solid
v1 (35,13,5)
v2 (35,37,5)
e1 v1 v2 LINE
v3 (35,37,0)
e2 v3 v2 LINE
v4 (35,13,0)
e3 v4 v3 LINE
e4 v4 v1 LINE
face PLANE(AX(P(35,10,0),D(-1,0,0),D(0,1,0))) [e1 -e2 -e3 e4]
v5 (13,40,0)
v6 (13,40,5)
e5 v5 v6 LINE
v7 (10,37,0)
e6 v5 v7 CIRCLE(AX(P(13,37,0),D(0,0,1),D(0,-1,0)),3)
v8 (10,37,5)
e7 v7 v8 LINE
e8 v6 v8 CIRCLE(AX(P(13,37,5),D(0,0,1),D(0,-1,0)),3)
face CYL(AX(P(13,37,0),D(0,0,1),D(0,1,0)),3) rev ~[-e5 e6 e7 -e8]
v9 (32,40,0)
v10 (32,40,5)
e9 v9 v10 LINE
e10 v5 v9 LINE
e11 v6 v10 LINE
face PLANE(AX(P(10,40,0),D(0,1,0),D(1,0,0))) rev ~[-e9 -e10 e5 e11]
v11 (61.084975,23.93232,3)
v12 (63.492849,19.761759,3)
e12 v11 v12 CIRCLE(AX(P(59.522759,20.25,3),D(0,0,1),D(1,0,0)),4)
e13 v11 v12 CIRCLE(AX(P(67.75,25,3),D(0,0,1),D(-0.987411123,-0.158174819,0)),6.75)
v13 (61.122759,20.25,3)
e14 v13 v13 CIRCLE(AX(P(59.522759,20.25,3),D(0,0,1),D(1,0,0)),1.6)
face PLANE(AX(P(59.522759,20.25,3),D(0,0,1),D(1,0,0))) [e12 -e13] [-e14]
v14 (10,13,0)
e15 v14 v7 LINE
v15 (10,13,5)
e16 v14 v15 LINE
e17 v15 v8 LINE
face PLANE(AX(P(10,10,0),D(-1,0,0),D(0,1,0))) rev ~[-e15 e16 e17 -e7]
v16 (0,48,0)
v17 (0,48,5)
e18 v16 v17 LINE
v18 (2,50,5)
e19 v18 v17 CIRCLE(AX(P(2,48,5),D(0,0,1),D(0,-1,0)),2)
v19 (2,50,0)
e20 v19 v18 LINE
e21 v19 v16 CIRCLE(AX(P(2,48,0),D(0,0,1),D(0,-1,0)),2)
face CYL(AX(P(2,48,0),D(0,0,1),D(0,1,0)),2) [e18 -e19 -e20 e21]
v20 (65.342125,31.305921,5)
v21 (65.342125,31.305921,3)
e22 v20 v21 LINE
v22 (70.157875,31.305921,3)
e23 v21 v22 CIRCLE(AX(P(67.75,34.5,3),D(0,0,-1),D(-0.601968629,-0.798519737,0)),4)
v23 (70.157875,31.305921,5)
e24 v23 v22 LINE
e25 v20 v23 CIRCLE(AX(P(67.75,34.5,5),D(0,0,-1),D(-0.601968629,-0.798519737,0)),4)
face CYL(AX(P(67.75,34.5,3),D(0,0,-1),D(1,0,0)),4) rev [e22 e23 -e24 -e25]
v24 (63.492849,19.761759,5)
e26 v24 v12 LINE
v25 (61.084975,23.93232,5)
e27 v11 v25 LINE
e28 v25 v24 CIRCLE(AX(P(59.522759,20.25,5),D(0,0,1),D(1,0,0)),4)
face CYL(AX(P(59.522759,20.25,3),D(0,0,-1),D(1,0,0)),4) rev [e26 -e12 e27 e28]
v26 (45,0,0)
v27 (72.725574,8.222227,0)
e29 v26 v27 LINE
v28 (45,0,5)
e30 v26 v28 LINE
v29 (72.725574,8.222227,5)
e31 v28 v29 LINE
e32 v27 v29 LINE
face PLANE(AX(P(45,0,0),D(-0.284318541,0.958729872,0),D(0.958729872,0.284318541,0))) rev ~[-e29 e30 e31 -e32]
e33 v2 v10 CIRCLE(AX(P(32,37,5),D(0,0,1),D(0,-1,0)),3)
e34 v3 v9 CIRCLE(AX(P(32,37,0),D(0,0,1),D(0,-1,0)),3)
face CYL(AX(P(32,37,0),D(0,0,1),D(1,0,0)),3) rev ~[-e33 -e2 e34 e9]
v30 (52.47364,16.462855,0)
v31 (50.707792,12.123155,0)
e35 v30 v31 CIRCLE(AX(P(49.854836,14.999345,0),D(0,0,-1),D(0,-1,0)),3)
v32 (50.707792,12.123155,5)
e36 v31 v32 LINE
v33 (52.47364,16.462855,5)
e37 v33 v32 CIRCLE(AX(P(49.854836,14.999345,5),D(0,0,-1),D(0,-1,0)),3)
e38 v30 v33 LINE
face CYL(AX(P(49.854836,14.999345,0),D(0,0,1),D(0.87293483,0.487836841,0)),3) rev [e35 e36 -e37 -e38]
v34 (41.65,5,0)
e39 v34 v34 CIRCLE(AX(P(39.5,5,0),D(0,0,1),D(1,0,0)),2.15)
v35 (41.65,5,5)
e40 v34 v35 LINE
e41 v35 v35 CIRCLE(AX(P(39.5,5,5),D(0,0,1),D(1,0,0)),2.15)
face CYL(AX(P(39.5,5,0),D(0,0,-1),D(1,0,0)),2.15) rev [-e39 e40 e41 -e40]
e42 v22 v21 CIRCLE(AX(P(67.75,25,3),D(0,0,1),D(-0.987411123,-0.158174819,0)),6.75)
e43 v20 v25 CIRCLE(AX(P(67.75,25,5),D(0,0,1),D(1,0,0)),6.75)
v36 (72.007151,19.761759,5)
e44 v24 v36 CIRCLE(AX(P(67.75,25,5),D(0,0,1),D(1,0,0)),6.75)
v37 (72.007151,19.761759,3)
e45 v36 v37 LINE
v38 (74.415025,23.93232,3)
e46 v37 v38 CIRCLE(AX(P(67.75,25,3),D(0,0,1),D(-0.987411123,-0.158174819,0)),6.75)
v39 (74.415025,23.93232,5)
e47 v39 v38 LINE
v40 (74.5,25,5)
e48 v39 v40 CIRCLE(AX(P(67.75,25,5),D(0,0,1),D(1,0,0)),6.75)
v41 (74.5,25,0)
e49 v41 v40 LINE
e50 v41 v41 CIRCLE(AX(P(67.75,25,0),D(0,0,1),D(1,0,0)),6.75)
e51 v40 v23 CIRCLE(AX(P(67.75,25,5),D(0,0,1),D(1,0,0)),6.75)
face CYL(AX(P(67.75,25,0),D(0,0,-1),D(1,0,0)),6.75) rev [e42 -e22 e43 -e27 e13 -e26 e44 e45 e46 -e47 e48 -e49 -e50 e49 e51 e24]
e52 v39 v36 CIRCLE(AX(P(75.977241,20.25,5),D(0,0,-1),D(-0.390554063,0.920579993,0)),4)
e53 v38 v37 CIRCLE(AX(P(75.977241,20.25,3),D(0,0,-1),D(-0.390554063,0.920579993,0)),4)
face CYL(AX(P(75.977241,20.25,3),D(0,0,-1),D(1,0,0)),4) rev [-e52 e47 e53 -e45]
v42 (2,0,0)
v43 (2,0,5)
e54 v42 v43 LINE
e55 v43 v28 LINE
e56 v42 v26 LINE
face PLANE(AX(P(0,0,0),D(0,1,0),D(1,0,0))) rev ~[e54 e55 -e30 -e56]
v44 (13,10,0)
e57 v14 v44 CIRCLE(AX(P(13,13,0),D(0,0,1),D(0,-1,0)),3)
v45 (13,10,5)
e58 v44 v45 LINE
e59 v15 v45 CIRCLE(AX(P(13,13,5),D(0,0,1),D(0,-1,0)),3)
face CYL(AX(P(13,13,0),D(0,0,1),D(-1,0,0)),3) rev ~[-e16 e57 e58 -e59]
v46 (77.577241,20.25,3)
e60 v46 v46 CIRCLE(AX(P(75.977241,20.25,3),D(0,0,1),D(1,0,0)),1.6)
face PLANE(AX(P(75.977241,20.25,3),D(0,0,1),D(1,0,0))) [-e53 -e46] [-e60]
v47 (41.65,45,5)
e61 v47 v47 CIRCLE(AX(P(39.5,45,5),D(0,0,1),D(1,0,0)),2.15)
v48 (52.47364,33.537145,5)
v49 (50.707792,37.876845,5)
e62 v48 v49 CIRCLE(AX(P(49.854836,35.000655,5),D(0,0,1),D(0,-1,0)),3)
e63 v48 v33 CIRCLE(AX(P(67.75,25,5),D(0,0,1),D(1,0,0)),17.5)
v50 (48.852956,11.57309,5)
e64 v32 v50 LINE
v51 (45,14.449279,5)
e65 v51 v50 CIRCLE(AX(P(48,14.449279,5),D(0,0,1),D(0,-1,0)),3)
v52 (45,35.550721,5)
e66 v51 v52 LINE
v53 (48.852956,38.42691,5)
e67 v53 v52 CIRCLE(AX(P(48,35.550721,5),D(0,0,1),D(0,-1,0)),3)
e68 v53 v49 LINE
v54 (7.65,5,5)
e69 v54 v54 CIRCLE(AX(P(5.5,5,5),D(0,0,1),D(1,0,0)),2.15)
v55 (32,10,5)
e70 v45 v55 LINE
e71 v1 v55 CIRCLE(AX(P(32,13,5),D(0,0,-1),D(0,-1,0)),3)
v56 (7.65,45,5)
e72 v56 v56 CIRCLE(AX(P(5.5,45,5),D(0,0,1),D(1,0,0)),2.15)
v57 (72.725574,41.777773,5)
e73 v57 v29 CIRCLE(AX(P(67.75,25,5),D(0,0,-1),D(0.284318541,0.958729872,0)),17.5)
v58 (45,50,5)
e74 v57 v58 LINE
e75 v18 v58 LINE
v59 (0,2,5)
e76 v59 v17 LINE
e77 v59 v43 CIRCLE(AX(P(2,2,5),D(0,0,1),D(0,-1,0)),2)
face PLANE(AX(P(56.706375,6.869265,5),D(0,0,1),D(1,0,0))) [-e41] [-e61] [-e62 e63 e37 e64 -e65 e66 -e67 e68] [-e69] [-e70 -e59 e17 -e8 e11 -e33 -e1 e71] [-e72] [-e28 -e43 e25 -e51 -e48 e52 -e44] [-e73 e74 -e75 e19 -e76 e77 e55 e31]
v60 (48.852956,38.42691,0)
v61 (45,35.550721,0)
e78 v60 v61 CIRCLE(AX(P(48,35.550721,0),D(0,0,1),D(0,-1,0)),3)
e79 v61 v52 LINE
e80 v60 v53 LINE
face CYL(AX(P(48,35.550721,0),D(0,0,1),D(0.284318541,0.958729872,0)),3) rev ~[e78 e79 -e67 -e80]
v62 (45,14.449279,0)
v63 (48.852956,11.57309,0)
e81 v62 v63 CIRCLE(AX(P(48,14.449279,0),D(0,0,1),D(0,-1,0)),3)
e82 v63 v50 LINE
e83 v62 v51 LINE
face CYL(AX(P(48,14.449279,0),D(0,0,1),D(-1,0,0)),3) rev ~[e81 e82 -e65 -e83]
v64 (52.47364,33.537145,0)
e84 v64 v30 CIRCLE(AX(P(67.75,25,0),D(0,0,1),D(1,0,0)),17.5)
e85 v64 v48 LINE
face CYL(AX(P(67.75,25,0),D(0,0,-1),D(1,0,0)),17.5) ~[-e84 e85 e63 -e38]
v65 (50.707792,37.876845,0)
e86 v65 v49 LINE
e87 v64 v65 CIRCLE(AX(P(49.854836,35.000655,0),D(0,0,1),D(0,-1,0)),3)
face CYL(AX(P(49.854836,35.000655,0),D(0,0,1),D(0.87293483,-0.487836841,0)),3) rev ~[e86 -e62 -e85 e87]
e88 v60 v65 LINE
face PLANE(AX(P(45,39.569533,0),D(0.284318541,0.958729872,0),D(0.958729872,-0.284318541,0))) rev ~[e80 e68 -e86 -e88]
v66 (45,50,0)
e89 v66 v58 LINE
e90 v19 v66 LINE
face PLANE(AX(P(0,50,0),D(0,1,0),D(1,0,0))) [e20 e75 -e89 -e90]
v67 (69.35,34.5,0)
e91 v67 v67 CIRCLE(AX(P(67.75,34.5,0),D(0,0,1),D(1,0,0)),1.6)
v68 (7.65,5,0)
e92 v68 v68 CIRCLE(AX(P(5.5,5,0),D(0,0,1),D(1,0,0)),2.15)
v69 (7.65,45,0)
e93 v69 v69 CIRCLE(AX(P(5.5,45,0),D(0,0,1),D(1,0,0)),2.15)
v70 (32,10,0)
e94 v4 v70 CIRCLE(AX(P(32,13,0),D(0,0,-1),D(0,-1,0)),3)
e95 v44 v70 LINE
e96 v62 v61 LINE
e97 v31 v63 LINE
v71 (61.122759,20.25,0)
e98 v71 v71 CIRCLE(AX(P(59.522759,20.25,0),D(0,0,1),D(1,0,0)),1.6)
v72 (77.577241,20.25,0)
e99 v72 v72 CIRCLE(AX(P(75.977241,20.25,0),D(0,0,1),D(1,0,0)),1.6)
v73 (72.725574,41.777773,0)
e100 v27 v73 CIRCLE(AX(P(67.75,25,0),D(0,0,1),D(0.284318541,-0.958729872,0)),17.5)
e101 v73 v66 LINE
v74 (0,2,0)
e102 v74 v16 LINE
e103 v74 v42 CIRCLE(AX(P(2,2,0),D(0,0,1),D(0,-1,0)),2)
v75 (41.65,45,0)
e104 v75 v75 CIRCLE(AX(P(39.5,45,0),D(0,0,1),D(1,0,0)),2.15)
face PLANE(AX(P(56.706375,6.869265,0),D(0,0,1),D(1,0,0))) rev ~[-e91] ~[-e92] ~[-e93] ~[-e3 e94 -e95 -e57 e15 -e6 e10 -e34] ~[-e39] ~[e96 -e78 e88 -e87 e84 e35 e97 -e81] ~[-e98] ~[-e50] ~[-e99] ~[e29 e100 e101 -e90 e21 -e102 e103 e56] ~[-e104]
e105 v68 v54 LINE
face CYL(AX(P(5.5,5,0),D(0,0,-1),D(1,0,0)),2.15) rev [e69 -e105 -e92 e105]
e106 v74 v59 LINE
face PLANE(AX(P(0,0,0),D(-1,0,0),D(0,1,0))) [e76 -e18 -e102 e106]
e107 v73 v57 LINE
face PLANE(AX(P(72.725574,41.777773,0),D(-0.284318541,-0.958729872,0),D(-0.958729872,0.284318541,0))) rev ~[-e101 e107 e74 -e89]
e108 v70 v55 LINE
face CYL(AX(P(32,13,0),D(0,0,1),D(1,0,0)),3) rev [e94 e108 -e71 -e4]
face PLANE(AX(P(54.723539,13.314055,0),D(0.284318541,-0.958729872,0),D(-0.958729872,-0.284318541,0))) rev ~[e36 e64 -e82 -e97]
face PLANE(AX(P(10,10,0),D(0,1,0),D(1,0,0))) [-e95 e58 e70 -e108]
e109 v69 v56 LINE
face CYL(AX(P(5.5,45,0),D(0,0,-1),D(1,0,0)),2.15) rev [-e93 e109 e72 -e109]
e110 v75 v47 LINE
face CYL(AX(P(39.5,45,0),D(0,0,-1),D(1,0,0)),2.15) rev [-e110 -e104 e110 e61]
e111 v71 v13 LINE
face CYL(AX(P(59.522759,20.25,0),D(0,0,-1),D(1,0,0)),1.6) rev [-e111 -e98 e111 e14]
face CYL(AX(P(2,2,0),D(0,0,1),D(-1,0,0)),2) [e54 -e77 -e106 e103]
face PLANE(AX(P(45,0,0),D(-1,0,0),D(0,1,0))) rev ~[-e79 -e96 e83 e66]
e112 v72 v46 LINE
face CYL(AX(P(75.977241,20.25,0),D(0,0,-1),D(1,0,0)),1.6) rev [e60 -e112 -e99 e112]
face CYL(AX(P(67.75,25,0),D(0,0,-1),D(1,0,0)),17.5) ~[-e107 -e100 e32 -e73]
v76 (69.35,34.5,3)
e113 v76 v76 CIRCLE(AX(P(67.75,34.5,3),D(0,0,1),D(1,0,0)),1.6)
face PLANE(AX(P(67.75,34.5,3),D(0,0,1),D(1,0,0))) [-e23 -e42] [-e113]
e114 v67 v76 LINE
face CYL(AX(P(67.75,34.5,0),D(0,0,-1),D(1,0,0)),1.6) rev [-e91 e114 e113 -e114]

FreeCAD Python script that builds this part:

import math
import FreeCAD as App
import Part
import Sketcher
from FreeCAD import Vector
Q = App.Units.Quantity


def edges_at(feature, points):
    """Names of the edges that pass closest to the given points."""
    edges = feature.Shape.Edges
    near = lambda p: min(range(len(edges)), key=lambda i: edges[i].distToShape(Part.Vertex(*p))[0])
    return sorted({f"Edge{near(p) + 1}" for p in points})


def add_polygon(sketch, points):
    """Adds a closed chain of lines whose ends are joined by coincident constraints."""
    first, n = sketch.GeometryCount, len(points)
    for a, b in zip(points, points[1:] + points[:1]):
        sketch.addGeometry(Part.LineSegment(App.Vector(*a, 0), App.Vector(*b, 0)), False)
    for i in range(n):
        sketch.addConstraint(Sketcher.Constraint("Coincident", first + i, 2, first + (i + 1) % n, 1))

doc = App.newDocument("Part")
body = doc.addObject("PartDesign::Body", "Body")

sketch1 = doc.addObject("Sketcher::SketchObject", "Sketch")
body.addObject(sketch1)
sketch1.AttachmentSupport = (doc.XY_Plane, [""])
sketch1.MapMode = "FlatFace"
sketch1.addGeometry(Part.LineSegment(Vector(0, 50, 0), Vector(0, 0, 0)), False)
sketch1.addGeometry(Part.LineSegment(Vector(0, 0, 0), Vector(45, 0, 0)), False)
sketch1.addGeometry(Part.LineSegment(Vector(45, 0, 0), Vector(72.7, 8.2, 0)), False)
sketch1.addGeometry(Part.ArcOfCircle(Part.Circle(Vector(67.8, 25, 0), Vector(0, 0, 1), 17.5), math.radians(-73), math.radians(73)), False)
sketch1.addGeometry(Part.LineSegment(Vector(72.7, 41.8, 0), Vector(45, 50, 0)), False)
sketch1.addGeometry(Part.LineSegment(Vector(45, 50, 0), Vector(0, 50, 0)), False)
sketch1.addGeometry(Part.LineSegment(Vector(45, 10.4, 0), Vector(45, 39.6, 0)), False)
sketch1.addGeometry(Part.LineSegment(Vector(45, 39.6, 0), Vector(54.7, 36.7, 0)), False)
sketch1.addGeometry(Part.ArcOfCircle(Part.Circle(Vector(67.8, 25, 0), Vector(0, 0, 1), 17.5), math.radians(138), math.radians(222)), False)
sketch1.addGeometry(Part.LineSegment(Vector(54.7, 13.3, 0), Vector(45, 10.4, 0)), False)
sketch1.addGeometry(Part.Circle(Vector(5.5, 5, 0), Vector(0, 0, 1), 2.1), False)
sketch1.addGeometry(Part.Circle(Vector(39.5, 5, 0), Vector(0, 0, 1), 2.1), False)
sketch1.addGeometry(Part.Circle(Vector(5.5, 45, 0), Vector(0, 0, 1), 2.1), False)
add_polygon(sketch1, [(35, 10), (10, 10), (10, 40), (35, 40)])
sketch1.addGeometry(Part.Circle(Vector(39.5, 45, 0), Vector(0, 0, 1), 2.1), False)
sketch1.addGeometry(Part.Circle(Vector(76, 20.2, 0), Vector(0, 0, 1), 1.6), False)
sketch1.addGeometry(Part.Circle(Vector(67.8, 34.5, 0), Vector(0, 0, 1), 1.6), False)
sketch1.addGeometry(Part.Circle(Vector(59.5, 20.2, 0), Vector(0, 0, 1), 1.6), False)
sketch1.addGeometry(Part.Circle(Vector(67.8, 25, 0), Vector(0, 0, 1), 6.8), False)
sketch1.addConstraint([
    Sketcher.Constraint("Coincident", 0, 2, 1, 1),
    Sketcher.Constraint("Coincident", 1, 2, 2, 1),
    Sketcher.Constraint("Tangent", 2, 2, 3, 1),
    Sketcher.Constraint("Tangent", 3, 2, 4, 1),
    Sketcher.Constraint("Coincident", 4, 2, 5, 1),
    Sketcher.Constraint("Coincident", 5, 2, 0, 1),
    Sketcher.Constraint("Coincident", 6, 2, 7, 1),
    Sketcher.Constraint("Coincident", 7, 2, 8, 1),
    Sketcher.Constraint("Coincident", 8, 2, 9, 1),
    Sketcher.Constraint("Coincident", 9, 2, 6, 1),
    Sketcher.Constraint("Vertical", 0),
    Sketcher.Constraint("Horizontal", 1),
    Sketcher.Constraint("Horizontal", 5),
    Sketcher.Constraint("Vertical", 6),
    Sketcher.Constraint("Horizontal", 13),
    Sketcher.Constraint("Vertical", 14),
    Sketcher.Constraint("Horizontal", 15),
    Sketcher.Constraint("Vertical", 16),
    Sketcher.Constraint("Coincident", 0, 2, -1, 1),
    Sketcher.Constraint("Coincident", 8, 3, 3, 3),
    Sketcher.Constraint("Coincident", 21, 3, 3, 3),
    Sketcher.Constraint("Equal", 3, 8),
    Sketcher.Constraint("Equal", 10, 11),
    Sketcher.Constraint("Equal", 11, 12),
    Sketcher.Constraint("Equal", 12, 17),
    Sketcher.Constraint("Equal", 18, 19),
    Sketcher.Constraint("Equal", 19, 20),
    Sketcher.Constraint("Parallel", 4, 7),
    Sketcher.Constraint("Parallel", 2, 9),
    Sketcher.Constraint("Horizontal", 10, 3, 11, 3),
    Sketcher.Constraint("Horizontal", 12, 3, 17, 3),
    Sketcher.Constraint("Horizontal", 18, 3, 20, 3),
    Sketcher.Constraint("Vertical", 10, 3, 12, 3),
    Sketcher.Constraint("Vertical", 11, 3, 17, 3),
    Sketcher.Constraint("Vertical", 8, 3, 19, 3),
    Sketcher.Constraint("Vertical", 2, 2, 3, 2),
    Sketcher.Constraint("Vertical", 1, 2, 4, 2),
    Sketcher.Constraint("Vertical", 4, 2, 6, 2),
    Sketcher.Constraint("Vertical", 7, 2, 8, 2),
    Sketcher.Constraint("Diameter", 10, Q("4.3 mm")),
    Sketcher.Constraint("Diameter", 18, Q("3.2 mm")),
    Sketcher.Constraint("Diameter", 21, Q("13.5 mm")),
    Sketcher.Constraint("Radius", 3, Q("17.5 mm")),
    Sketcher.Constraint("DistanceX", 1, 1, 1, 2, Q("45 mm")),
    Sketcher.Constraint("DistanceX", 13, 2, 13, 1, Q("25 mm")),
    Sketcher.Constraint("DistanceY", 0, 2, 0, 1, Q("50 mm")),
    Sketcher.Constraint("DistanceY", 14, 1, 14, 2, Q("30 mm")),
    Sketcher.Constraint("DistanceY", -1, 1, 10, 3, Q("5 mm")),
    Sketcher.Constraint("DistanceY", -1, 1, 12, 3, Q("45 mm")),
    Sketcher.Constraint("DistanceX", -1, 1, 13, 2, Q("10 mm")),
    Sketcher.Constraint("DistanceY", -1, 1, 13, 2, Q("10 mm")),
    Sketcher.Constraint("DistanceX", 10, 3, 11, 3, Q("34 mm")),
    Sketcher.Constraint("DistanceX", -1, 1, 10, 3, Q("5.5 mm")),
    Sketcher.Constraint("DistanceY", -1, 1, 19, 3, Q("34.5 mm")),
    Sketcher.Constraint("DistanceX", -1, 1, 3, 3, Q("67.75 mm")),
    Sketcher.Constraint("DistanceY", -1, 1, 18, 3, Q("20.25 mm")),
    Sketcher.Constraint("DistanceY", 6, 1, 6, 2, Q("29.139067 mm")),
    Sketcher.Constraint("DistanceX", -1, 1, 18, 3, Q("75.977241 mm")),
    Sketcher.Constraint("DistanceX", -1, 1, 20, 3, Q("59.522759 mm")),
])
pad1 = doc.addObject("PartDesign::Pad", "Pad")
body.addObject(pad1)
pad1.Profile = sketch1
pad1.Length = 5

sketch2 = doc.addObject("Sketcher::SketchObject", "Sketch001")
body.addObject(sketch2)
sketch2.AttachmentSupport = (doc.XY_Plane, [""])
sketch2.MapMode = "FlatFace"
sketch2.AttachmentOffset = App.Placement(Vector(0, 0, 3), App.Rotation())
sketch2.addGeometry([
    Part.ArcOfCircle(Part.Circle(Vector(67.8, 34.5, 0), Vector(0, 0, 1), 4), math.radians(-53), math.radians(233)),
    Part.ArcOfCircle(Part.Circle(Vector(67.8, 25, 0), Vector(0, 0, 1), 6.8), math.radians(111), math.radians(189)),
    Part.ArcOfCircle(Part.Circle(Vector(59.5, 20.2, 0), Vector(0, 0, 1), 4), math.radians(67), math.radians(353)),
    Part.ArcOfCircle(Part.Circle(Vector(67.8, 25, 0), Vector(0, 0, 1), 6.8), math.radians(-129), math.radians(-51)),
    Part.ArcOfCircle(Part.Circle(Vector(76, 20.2, 0), Vector(0, 0, 1), 4), math.radians(-173), math.radians(113)),
    Part.ArcOfCircle(Part.Circle(Vector(67.8, 25, 0), Vector(0, 0, 1), 6.8), math.radians(-9), math.radians(69)),
    Part.Circle(Vector(67.8, 34.5, 0), Vector(0, 0, 1), 1.6),
    Part.Circle(Vector(59.5, 20.2, 0), Vector(0, 0, 1), 1.6),
    Part.Circle(Vector(76, 20.2, 0), Vector(0, 0, 1), 1.6),
], False)
sketch2.addConstraint([
    Sketcher.Constraint("Coincident", 0, 2, 1, 1),
    Sketcher.Constraint("Coincident", 1, 2, 2, 1),
    Sketcher.Constraint("Coincident", 2, 2, 3, 1),
    Sketcher.Constraint("Coincident", 3, 2, 4, 1),
    Sketcher.Constraint("Coincident", 4, 2, 5, 1),
    Sketcher.Constraint("Coincident", 5, 2, 0, 1),
    Sketcher.Constraint("Coincident", 3, 3, 1, 3),
    Sketcher.Constraint("Coincident", 5, 3, 1, 3),
    Sketcher.Constraint("Coincident", 6, 3, 0, 3),
    Sketcher.Constraint("Coincident", 7, 3, 2, 3),
    Sketcher.Constraint("Coincident", 8, 3, 4, 3),
    Sketcher.Constraint("Equal", 0, 2),
    Sketcher.Constraint("Equal", 1, 3),
    Sketcher.Constraint("Equal", 2, 4),
    Sketcher.Constraint("Equal", 3, 5),
    Sketcher.Constraint("Equal", 6, 7),
    Sketcher.Constraint("Equal", 7, 8),
    Sketcher.Constraint("Horizontal", 2, 3, 4, 3),
    Sketcher.Constraint("Horizontal", 2, 2, 3, 2),
    Sketcher.Constraint("Horizontal", 0, 2, 5, 2),
    Sketcher.Constraint("Radius", 0, Q("4 mm")),
    Sketcher.Constraint("Diameter", 6, Q("3.2 mm")),
    Sketcher.Constraint("Radius", 1, Q("6.75 mm")),
    Sketcher.Constraint("DistanceY", -1, 1, 1, 3, Q("25 mm")),
    Sketcher.Constraint("DistanceY", -1, 1, 0, 3, Q("34.5 mm")),
    Sketcher.Constraint("DistanceX", -1, 1, 0, 3, Q("67.75 mm")),
    Sketcher.Constraint("DistanceY", -1, 1, 2, 3, Q("20.25 mm")),
    Sketcher.Constraint("DistanceX", -1, 1, 2, 3, Q("59.522759 mm")),
])
pocket1 = doc.addObject("PartDesign::Pocket", "Pocket")
body.addObject(pocket1)
pocket1.Profile = sketch2
pocket1.Length = 2
pocket1.Reversed = True
doc.recompute()

fillet = doc.addObject("PartDesign::Fillet", "Fillet")
body.addObject(fillet)
fillet.Base = (pocket1, edges_at(pocket1, [
    (35, 40, 2.5),
    (10, 40, 2.5),
    (10, 10, 2.5),
    (35, 10, 2.5),
    (45, 39.57, 2.5),
    (45, 10.43, 2.5),
    (54.724, 13.314, 2.5),
    (54.724, 36.686, 2.5),
]))
fillet.Radius = 3
doc.recompute()

fillet2 = doc.addObject("PartDesign::Fillet", "Fillet001")
body.addObject(fillet2)
fillet2.Base = (fillet, edges_at(fillet, [(0, 0, 2.5), (0, 50, 2.5)]))
fillet2.Radius = 2

doc.recompute()
